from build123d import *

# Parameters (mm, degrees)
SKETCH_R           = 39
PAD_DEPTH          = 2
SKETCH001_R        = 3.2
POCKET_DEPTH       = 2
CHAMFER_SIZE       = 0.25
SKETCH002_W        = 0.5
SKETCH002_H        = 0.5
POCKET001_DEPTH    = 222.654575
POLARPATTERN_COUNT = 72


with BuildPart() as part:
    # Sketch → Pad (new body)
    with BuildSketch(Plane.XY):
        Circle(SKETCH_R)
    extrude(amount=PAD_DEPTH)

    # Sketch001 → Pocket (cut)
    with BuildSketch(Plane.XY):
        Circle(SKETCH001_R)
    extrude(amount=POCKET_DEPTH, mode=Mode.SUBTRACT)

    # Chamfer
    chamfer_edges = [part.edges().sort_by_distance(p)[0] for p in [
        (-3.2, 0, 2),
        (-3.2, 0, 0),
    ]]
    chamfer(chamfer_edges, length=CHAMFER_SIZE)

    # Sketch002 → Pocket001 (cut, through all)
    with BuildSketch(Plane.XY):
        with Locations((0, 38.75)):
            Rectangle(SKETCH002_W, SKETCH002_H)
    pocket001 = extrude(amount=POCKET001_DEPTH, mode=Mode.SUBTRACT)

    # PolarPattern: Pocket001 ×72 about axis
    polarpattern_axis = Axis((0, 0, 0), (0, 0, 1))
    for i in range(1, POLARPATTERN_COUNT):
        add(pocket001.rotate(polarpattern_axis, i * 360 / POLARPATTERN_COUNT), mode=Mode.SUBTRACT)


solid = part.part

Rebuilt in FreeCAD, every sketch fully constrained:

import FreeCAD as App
import Part
import Sketcher
Q = App.Units.Quantity


def edges_at(feature, points):
    """Names of the edges that pass closest to the given points."""
    edges = feature.Shape.Edges
    near = lambda p: min(range(len(edges)), key=lambda i: edges[i].distToShape(Part.Vertex(*p))[0])
    return sorted({f"Edge{near(p) + 1}" for p in points})


def add_polygon(sketch, points):
    """Adds a closed chain of lines whose ends are joined by coincident constraints."""
    first, n = sketch.GeometryCount, len(points)
    for a, b in zip(points, points[1:] + points[:1]):
        sketch.addGeometry(Part.LineSegment(App.Vector(*a, 0), App.Vector(*b, 0)), False)
    for i in range(n):
        sketch.addConstraint(Sketcher.Constraint("Coincident", first + i, 2, first + (i + 1) % n, 1))

doc = App.newDocument("Part")
body = doc.addObject("PartDesign::Body", "Body")

sketch1 = body.newObject("Sketcher::SketchObject", "Sketch")
sketch1.AttachmentSupport = (doc.getObject("XY_Plane"), [""])
sketch1.MapMode = "FlatFace"
sketch1.addGeometry(Part.Circle(App.Vector(0, 0, 0), App.Vector(0, 0, 1), 39), False)
sketch1.addConstraint([
    Sketcher.Constraint("Coincident", 0, 3, -1, 1),
    Sketcher.Constraint("Diameter", 0, Q("78 mm")),
])
pad1 = body.newObject("PartDesign::Pad", "Pad")
pad1.Profile = sketch1
pad1.Length = 2

sketch2 = body.newObject("Sketcher::SketchObject", "Sketch001")
sketch2.AttachmentSupport = (doc.getObject("XY_Plane"), [""])
sketch2.MapMode = "FlatFace"
sketch2.addGeometry(Part.Circle(App.Vector(0, 0, 0), App.Vector(0, 0, 1), 3.2), False)
sketch2.addConstraint([
    Sketcher.Constraint("Coincident", 0, 3, -1, 1),
    Sketcher.Constraint("Diameter", 0, Q("6.4 mm")),
])
pocket1 = body.newObject("PartDesign::Pocket", "Pocket")
pocket1.Profile = sketch2
pocket1.Length = 2
pocket1.Reversed = True
doc.recompute()

chamfer = body.newObject("PartDesign::Chamfer", "Chamfer")
chamfer.Base = (pocket1, edges_at(pocket1, [(-3.2, 0, 2), (-3.2, 0, 0)]))
chamfer.Size = 0.25

sketch3 = body.newObject("Sketcher::SketchObject", "Sketch002")
sketch3.AttachmentSupport = (doc.getObject("XY_Plane"), [""])
sketch3.MapMode = "FlatFace"
add_polygon(sketch3, [(-0.2, 39), (-0.2, 38.5), (0.2, 38.5), (0.2, 39)])
sketch3.addConstraint([
    Sketcher.Constraint("Vertical", 0),
    Sketcher.Constraint("Horizontal", 1),
    Sketcher.Constraint("Vertical", 2),
    Sketcher.Constraint("Horizontal", 3),
    Sketcher.Constraint("Equal", 3, 0),
    Sketcher.Constraint("DistanceX", 1, 1, 1, 2, Q("0.5 mm")),
    Sketcher.Constraint("DistanceY", -1, 1, 2, 2, Q("39 mm")),
    Sketcher.Constraint("DistanceX", 0, 2, -1, 1, Q("0.25 mm")),
])
pocket2 = body.newObject("PartDesign::Pocket", "Pocket001")
pocket2.Profile = sketch3
pocket2.Type = "ThroughAll"
pocket2.Reversed = True
doc.recompute()

polarpattern = body.newObject("PartDesign::PolarPattern", "PolarPattern")
polarpattern.Originals = [pocket2]
polarpattern.Axis = (doc.getObject("Z_Axis"), [""])
polarpattern.Angle = 360
polarpattern.Occurrences = 72
body.Tip = polarpattern

doc.recompute()
